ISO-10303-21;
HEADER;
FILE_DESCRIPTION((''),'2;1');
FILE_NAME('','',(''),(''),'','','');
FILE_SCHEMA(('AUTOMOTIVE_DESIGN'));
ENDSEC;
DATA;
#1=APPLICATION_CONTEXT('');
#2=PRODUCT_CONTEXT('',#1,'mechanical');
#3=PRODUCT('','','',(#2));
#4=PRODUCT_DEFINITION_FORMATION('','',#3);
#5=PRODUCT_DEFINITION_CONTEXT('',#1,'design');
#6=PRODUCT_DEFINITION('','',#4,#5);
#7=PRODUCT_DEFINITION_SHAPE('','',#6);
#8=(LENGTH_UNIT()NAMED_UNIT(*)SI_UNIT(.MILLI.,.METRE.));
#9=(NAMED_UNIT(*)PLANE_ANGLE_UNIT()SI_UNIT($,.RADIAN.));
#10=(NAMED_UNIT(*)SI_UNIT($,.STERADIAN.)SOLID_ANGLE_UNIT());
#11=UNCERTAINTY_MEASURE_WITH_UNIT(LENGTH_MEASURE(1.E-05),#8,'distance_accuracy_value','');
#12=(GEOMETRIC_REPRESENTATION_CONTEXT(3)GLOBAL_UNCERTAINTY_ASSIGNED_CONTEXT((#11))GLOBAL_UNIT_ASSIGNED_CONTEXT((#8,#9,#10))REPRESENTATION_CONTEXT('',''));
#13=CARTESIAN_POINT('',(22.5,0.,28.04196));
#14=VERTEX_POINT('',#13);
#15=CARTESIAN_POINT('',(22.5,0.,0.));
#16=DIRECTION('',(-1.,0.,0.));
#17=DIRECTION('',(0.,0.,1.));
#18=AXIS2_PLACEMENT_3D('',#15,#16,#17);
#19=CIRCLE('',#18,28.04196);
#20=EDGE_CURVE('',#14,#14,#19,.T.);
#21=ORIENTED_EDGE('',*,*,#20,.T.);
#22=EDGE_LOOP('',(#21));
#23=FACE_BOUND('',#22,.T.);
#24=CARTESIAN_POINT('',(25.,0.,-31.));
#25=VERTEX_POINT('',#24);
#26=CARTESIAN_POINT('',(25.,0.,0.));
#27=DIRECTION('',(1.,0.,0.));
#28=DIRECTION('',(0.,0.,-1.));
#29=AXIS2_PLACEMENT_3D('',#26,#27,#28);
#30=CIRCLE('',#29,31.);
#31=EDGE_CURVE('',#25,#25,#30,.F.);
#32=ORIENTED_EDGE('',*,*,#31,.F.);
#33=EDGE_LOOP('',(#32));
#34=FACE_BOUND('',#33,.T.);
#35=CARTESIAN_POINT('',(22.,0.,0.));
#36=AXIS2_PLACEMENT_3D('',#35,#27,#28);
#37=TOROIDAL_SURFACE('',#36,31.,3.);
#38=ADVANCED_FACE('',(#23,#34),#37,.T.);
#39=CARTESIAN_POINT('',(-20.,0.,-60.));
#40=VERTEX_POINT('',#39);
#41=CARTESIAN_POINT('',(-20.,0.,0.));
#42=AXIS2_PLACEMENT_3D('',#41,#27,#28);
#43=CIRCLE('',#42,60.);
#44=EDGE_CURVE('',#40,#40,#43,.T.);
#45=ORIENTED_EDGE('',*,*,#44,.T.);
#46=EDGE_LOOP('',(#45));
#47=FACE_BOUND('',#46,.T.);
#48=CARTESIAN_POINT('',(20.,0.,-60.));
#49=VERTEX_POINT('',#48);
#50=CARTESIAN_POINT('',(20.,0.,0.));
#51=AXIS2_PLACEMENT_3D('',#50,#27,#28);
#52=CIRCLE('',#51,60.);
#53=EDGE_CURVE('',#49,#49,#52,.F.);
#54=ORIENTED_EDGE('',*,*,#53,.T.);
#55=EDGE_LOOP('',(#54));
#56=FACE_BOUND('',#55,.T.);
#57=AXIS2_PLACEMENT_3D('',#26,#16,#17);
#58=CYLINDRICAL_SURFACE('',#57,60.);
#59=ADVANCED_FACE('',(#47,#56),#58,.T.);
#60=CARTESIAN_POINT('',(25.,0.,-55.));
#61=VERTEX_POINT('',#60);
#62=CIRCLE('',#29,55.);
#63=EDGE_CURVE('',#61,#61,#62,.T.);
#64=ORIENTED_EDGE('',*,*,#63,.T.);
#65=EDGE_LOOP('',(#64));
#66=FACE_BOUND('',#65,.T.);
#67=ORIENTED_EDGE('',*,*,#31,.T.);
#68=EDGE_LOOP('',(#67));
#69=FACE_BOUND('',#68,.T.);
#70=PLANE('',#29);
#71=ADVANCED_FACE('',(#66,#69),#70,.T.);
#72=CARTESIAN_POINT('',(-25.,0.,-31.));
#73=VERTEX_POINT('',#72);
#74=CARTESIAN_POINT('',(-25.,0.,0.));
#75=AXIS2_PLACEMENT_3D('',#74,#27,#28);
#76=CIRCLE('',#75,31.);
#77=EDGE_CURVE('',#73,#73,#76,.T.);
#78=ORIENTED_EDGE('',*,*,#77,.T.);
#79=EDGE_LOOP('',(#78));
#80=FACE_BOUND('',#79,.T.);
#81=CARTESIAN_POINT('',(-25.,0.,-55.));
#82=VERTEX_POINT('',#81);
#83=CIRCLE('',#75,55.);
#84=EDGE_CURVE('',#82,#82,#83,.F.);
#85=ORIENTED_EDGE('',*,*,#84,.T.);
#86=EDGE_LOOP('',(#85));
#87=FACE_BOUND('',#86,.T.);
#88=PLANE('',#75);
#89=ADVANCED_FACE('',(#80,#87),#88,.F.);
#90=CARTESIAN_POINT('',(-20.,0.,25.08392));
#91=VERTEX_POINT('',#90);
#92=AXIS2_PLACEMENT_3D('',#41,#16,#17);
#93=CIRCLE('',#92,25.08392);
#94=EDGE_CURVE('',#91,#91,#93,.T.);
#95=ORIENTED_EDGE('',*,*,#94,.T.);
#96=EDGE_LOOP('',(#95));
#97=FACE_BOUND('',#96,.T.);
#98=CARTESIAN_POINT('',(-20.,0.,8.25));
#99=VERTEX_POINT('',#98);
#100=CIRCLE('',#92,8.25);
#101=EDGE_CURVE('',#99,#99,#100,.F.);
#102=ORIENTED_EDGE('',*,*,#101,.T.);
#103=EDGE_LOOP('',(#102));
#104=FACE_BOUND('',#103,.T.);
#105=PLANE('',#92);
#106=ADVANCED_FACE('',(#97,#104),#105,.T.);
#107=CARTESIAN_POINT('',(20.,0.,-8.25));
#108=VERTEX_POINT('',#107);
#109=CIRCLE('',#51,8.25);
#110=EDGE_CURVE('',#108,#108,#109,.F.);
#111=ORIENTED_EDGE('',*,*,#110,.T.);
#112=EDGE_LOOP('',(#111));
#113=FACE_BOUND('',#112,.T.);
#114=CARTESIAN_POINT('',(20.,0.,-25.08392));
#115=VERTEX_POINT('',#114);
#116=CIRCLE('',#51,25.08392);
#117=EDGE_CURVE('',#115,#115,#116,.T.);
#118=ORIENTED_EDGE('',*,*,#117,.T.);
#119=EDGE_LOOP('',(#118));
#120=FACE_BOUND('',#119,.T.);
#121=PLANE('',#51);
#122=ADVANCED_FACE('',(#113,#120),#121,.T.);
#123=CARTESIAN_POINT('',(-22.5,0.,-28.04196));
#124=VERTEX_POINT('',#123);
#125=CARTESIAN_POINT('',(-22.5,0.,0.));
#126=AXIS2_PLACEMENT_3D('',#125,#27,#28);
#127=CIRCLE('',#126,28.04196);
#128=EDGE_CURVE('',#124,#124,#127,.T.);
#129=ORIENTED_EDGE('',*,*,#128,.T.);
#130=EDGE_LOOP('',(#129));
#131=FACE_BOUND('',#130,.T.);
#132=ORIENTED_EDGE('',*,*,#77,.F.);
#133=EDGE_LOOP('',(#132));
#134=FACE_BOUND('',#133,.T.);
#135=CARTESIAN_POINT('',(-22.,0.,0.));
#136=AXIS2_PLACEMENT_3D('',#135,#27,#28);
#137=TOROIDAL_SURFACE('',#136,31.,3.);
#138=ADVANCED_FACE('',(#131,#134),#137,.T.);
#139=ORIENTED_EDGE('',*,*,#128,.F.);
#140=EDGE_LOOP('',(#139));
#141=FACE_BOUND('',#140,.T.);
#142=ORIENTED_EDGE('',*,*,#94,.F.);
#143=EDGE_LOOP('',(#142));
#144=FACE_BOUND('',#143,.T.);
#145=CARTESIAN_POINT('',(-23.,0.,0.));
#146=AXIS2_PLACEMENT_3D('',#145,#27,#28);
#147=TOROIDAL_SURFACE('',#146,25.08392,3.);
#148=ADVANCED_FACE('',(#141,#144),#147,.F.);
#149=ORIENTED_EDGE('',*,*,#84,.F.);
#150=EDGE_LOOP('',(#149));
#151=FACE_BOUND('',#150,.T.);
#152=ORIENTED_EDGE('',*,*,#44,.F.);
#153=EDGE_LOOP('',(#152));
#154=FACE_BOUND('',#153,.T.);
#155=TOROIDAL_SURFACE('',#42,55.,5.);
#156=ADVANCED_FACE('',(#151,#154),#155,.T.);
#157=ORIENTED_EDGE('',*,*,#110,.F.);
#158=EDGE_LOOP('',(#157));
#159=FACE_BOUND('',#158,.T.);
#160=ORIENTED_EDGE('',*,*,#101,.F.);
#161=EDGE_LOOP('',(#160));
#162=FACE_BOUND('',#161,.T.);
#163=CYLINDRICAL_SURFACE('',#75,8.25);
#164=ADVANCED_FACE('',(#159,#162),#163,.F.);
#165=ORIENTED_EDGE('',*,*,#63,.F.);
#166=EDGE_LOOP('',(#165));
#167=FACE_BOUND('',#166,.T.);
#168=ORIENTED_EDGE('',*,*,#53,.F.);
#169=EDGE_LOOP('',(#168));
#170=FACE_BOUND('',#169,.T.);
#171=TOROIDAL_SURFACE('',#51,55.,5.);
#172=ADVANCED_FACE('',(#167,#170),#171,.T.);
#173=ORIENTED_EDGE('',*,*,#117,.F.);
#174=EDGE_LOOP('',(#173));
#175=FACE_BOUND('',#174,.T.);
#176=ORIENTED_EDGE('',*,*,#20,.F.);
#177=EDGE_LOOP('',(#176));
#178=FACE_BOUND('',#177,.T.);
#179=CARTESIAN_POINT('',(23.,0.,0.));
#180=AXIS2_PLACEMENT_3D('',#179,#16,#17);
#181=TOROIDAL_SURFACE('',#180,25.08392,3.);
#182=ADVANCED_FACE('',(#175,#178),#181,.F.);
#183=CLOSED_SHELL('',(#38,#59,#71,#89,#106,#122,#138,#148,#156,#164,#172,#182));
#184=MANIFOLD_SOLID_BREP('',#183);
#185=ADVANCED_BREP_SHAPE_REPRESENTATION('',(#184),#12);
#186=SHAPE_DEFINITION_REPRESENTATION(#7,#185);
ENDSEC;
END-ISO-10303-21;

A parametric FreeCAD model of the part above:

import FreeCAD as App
import Part
import Sketcher
from FreeCAD import Vector


def edges_at(feature, points):
    """Names of the edges that pass closest to the given points."""
    edges = feature.Shape.Edges
    near = lambda p: min(range(len(edges)), key=lambda i: edges[i].distToShape(Part.Vertex(*p))[0])
    return sorted({f"Edge{near(p) + 1}" for p in points})

doc = App.newDocument("Part")
body = doc.addObject("PartDesign::Body", "Body")

# Sketch on YZ plane
sketch1 = body.newObject("Sketcher::SketchObject", "Sketch")
sketch1.AttachmentSupport = (doc.getObject("YZ_Plane"), [""])
sketch1.MapMode = "FlatFace"
sketch1.addGeometry(Part.Circle(Vector(0, 0, 0), Vector(0, 0, 1), 60), False)
sketch1.addConstraint([
    Sketcher.Constraint("Coincident", 0, 3, -1, 1),
    Sketcher.Constraint("Diameter", 0, 120.0),
])
pad1 = body.newObject("PartDesign::Pad", "Pad")
pad1.Profile = sketch1
pad1.Length = 50
pad1.Midplane = True
doc.recompute()

fillet = body.newObject("PartDesign::Fillet", "Fillet")
fillet.Base = (pad1, edges_at(pad1, [(-25, 0, 60), (25, 0, 60)]))
fillet.Radius = 5

# Sketch on YZ plane
sketch2 = body.newObject("Sketcher::SketchObject", "Sketch001")
sketch2.AttachmentSupport = (doc.getObject("YZ_Plane"), [""])
sketch2.MapMode = "FlatFace"
sketch2.AttachmentOffset = App.Placement(Vector(0, 0, 25), App.Rotation())
sketch2.addGeometry(Part.Circle(Vector(0, 0, 0), Vector(0, 0, 1), 8), False)
sketch2.addConstraint([
    Sketcher.Constraint("Coincident", 0, 3, -1, 1),
    Sketcher.Constraint("Diameter", 0, 16.5),
])
pocket1 = body.newObject("PartDesign::Pocket", "Pocket")
pocket1.Profile = sketch2
pocket1.Type = "ThroughAll"
doc.recompute()

chamfer = body.newObject("PartDesign::Chamfer", "Chamfer")
chamfer.Base = (pocket1, edges_at(pocket1, [(-25, 0, 8.25), (25, 0, 8.25)]))
chamfer.Size = 3

# Sketch on YZ plane
sketch3 = body.newObject("Sketcher::SketchObject", "Sketch002")
sketch3.AttachmentSupport = (doc.getObject("YZ_Plane"), [""])
sketch3.MapMode = "FlatFace"
sketch3.AttachmentOffset = App.Placement(Vector(0, 0, 25), App.Rotation())
sketch3.addGeometry(Part.Circle(Vector(0, 0, 0), Vector(0, 0, 1), 28), False)
sketch3.addConstraint([
    Sketcher.Constraint("Coincident", 0, 3, -1, 1),
    Sketcher.Constraint("Diameter", 0, 56.0),
])
pocket2 = body.newObject("PartDesign::Pocket", "Pocket001")
pocket2.Profile = sketch3
pocket2.Length = 5
doc.recompute()

fillet2 = body.newObject("PartDesign::Fillet", "Fillet001")
fillet2.Base = (pocket2, edges_at(pocket2, [(25, 0, 28)]))
fillet2.Radius = 3
doc.recompute()

fillet3 = body.newObject("PartDesign::Fillet", "Fillet002")
fillet3.Base = (fillet2, edges_at(fillet2, [(20, 0, 28)]))
fillet3.Radius = 3

# Sketch on YZ plane
sketch4 = body.newObject("Sketcher::SketchObject", "Sketch003")
sketch4.AttachmentSupport = (doc.getObject("YZ_Plane"), [""])
sketch4.MapMode = "FlatFace"
sketch4.AttachmentOffset = App.Placement(Vector(0, 0, -25), App.Rotation())
sketch4.addGeometry(Part.Circle(Vector(0, 0, 0), Vector(0, 0, 1), 28), False)
sketch4.addConstraint([
    Sketcher.Constraint("Coincident", 0, 3, -1, 1),
    Sketcher.Constraint("Diameter", 0, 56.0),
])
pocket3 = body.newObject("PartDesign::Pocket", "Pocket002")
pocket3.Profile = sketch4
pocket3.Length = 5
pocket3.Reversed = True
doc.recompute()

fillet4 = body.newObject("PartDesign::Fillet", "Fillet003")
fillet4.Base = (pocket3, edges_at(pocket3, [(-25, 0, -28)]))
fillet4.Radius = 3
doc.recompute()

fillet5 = body.newObject("PartDesign::Fillet", "Fillet004")
fillet5.Base = (fillet4, edges_at(fillet4, [(-20, 0, -28)]))
fillet5.Radius = 3

doc.recompute()
